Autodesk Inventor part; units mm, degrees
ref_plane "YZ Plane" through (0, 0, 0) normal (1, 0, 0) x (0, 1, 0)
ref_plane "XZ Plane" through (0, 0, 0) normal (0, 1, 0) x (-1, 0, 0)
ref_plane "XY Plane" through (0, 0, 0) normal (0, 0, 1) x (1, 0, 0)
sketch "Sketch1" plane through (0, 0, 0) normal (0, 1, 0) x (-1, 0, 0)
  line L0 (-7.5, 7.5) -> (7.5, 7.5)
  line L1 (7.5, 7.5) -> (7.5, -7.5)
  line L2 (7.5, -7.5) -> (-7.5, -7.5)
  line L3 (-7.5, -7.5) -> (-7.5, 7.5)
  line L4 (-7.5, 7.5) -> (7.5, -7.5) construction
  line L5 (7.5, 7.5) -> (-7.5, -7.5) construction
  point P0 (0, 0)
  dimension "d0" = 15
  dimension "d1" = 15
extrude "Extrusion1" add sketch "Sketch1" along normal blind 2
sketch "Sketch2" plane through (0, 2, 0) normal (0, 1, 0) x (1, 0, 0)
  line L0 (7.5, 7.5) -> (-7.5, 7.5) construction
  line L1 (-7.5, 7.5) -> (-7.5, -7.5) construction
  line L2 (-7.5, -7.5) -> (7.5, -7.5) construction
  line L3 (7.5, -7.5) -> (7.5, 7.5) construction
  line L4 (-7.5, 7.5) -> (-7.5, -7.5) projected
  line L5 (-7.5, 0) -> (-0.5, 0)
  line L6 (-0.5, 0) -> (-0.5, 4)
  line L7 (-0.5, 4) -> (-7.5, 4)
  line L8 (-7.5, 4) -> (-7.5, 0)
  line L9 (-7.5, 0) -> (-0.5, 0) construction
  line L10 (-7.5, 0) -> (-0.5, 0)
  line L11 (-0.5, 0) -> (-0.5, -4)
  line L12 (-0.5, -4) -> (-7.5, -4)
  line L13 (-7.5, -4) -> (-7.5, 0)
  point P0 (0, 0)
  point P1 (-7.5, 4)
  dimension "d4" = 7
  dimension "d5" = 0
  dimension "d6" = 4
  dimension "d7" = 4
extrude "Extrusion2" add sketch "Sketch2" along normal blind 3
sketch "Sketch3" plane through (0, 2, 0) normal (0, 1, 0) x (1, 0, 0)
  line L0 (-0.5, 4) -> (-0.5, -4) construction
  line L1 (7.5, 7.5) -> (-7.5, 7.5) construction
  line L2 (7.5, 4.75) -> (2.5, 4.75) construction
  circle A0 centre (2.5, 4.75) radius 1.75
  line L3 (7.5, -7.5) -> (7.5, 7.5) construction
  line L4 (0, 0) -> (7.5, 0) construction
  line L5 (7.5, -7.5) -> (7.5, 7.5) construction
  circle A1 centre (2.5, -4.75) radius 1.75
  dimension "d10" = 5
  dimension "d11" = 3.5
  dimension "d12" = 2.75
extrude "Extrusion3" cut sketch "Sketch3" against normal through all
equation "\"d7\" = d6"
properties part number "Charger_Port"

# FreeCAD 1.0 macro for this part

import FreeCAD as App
import Part
import Sketcher
from FreeCAD import Vector
Q = App.Units.Quantity

doc = App.newDocument("Part")
body = doc.addObject("PartDesign::Body", "Body")

sketch1 = body.newObject("Sketcher::SketchObject", "Sketch")
sketch1.AttachmentSupport = (doc.getObject("XZ_Plane"), [""])
sketch1.MapMode = "FlatFace"
sketch1.addGeometry([
    Part.LineSegment(Vector(-8, 8, 0), Vector(8, 8, 0)),
    Part.LineSegment(Vector(8, 8, 0), Vector(8, -8, 0)),
    Part.LineSegment(Vector(8, -8, 0), Vector(-8, -8, 0)),
    Part.LineSegment(Vector(-8, -8, 0), Vector(-8, 8, 0)),
], False)
sketch1.addConstraint([
    Sketcher.Constraint("Coincident", 0, 2, 1, 1),
    Sketcher.Constraint("Coincident", 1, 2, 2, 1),
    Sketcher.Constraint("Coincident", 2, 2, 3, 1),
    Sketcher.Constraint("Coincident", 3, 2, 0, 1),
    Sketcher.Constraint("Horizontal", 0),
    Sketcher.Constraint("Vertical", 1),
    Sketcher.Constraint("Horizontal", 2),
    Sketcher.Constraint("Vertical", 3),
    Sketcher.Constraint("Symmetric", 0, 2, 2, 2, -1, 1),
    Sketcher.Constraint("Equal", 2, 1),
    Sketcher.Constraint("DistanceX", 0, 1, 0, 2, Q("15 mm")),
])
pad1 = body.newObject("PartDesign::Pad", "Pad")
pad1.Profile = sketch1
pad1.Length = 2
pad1.Reversed = True

sketch2 = body.newObject("Sketcher::SketchObject", "Sketch001")
sketch2.AttachmentSupport = (doc.getObject("XZ_Plane"), [""])
sketch2.MapMode = "FlatFace"
sketch2.AttachmentOffset = App.Placement(Vector(0, 0, -2), App.Rotation())
sketch2.addGeometry([
    Part.LineSegment(Vector(0, -4, 0), Vector(-8, -4, 0)),
    Part.LineSegment(Vector(-8, -4, 0), Vector(-8, 4, 0)),
    Part.LineSegment(Vector(-8, 4, 0), Vector(0, 4, 0)),
    Part.LineSegment(Vector(0, 4, 0), Vector(0, -4, 0)),
], False)
sketch2.addConstraint([
    Sketcher.Constraint("Coincident", 0, 2, 1, 1),
    Sketcher.Constraint("Coincident", 1, 2, 2, 1),
    Sketcher.Constraint("Coincident", 2, 2, 3, 1),
    Sketcher.Constraint("Coincident", 3, 2, 0, 1),
    Sketcher.Constraint("Horizontal", 0),
    Sketcher.Constraint("Vertical", 1),
    Sketcher.Constraint("Horizontal", 2),
    Sketcher.Constraint("Vertical", 3),
    Sketcher.Constraint("DistanceX", 0, 2, 0, 1, Q("7 mm")),
    Sketcher.Constraint("DistanceY", 0, 2, -1, 1, Q("4 mm")),
    Sketcher.Constraint("DistanceY", -1, 1, 1, 2, Q("4 mm")),
    Sketcher.Constraint("DistanceX", 0, 2, -1, 1, Q("7.5 mm")),
])
pad2 = body.newObject("PartDesign::Pad", "Pad001")
pad2.Profile = sketch2
pad2.Length = 3
pad2.Reversed = True

sketch3 = body.newObject("Sketcher::SketchObject", "Sketch002")
sketch3.AttachmentSupport = (doc.getObject("XZ_Plane"), [""])
sketch3.MapMode = "FlatFace"
sketch3.AttachmentOffset = App.Placement(Vector(0, 0, -2), App.Rotation())
sketch3.addGeometry([
    Part.Circle(Vector(2.5, -4.8, 0), Vector(0, 0, 1), 1.8),
    Part.Circle(Vector(2.5, 4.8, 0), Vector(0, 0, 1), 1.8),
], False)
sketch3.addConstraint([
    Sketcher.Constraint("Equal", 0, 1),
    Sketcher.Constraint("Symmetric", 0, 3, 1, 3, -1),
    Sketcher.Constraint("Diameter", 0, Q("3.5 mm")),
    Sketcher.Constraint("DistanceX", -1, 1, 0, 3, Q("2.5 mm")),
    Sketcher.Constraint("DistanceY", 0, 3, 1, 3, Q("9.5 mm")),
])
pocket1 = body.newObject("PartDesign::Pocket", "Pocket")
pocket1.Profile = sketch3
pocket1.Type = "ThroughAll"
pocket1.Reversed = True

doc.recompute()
